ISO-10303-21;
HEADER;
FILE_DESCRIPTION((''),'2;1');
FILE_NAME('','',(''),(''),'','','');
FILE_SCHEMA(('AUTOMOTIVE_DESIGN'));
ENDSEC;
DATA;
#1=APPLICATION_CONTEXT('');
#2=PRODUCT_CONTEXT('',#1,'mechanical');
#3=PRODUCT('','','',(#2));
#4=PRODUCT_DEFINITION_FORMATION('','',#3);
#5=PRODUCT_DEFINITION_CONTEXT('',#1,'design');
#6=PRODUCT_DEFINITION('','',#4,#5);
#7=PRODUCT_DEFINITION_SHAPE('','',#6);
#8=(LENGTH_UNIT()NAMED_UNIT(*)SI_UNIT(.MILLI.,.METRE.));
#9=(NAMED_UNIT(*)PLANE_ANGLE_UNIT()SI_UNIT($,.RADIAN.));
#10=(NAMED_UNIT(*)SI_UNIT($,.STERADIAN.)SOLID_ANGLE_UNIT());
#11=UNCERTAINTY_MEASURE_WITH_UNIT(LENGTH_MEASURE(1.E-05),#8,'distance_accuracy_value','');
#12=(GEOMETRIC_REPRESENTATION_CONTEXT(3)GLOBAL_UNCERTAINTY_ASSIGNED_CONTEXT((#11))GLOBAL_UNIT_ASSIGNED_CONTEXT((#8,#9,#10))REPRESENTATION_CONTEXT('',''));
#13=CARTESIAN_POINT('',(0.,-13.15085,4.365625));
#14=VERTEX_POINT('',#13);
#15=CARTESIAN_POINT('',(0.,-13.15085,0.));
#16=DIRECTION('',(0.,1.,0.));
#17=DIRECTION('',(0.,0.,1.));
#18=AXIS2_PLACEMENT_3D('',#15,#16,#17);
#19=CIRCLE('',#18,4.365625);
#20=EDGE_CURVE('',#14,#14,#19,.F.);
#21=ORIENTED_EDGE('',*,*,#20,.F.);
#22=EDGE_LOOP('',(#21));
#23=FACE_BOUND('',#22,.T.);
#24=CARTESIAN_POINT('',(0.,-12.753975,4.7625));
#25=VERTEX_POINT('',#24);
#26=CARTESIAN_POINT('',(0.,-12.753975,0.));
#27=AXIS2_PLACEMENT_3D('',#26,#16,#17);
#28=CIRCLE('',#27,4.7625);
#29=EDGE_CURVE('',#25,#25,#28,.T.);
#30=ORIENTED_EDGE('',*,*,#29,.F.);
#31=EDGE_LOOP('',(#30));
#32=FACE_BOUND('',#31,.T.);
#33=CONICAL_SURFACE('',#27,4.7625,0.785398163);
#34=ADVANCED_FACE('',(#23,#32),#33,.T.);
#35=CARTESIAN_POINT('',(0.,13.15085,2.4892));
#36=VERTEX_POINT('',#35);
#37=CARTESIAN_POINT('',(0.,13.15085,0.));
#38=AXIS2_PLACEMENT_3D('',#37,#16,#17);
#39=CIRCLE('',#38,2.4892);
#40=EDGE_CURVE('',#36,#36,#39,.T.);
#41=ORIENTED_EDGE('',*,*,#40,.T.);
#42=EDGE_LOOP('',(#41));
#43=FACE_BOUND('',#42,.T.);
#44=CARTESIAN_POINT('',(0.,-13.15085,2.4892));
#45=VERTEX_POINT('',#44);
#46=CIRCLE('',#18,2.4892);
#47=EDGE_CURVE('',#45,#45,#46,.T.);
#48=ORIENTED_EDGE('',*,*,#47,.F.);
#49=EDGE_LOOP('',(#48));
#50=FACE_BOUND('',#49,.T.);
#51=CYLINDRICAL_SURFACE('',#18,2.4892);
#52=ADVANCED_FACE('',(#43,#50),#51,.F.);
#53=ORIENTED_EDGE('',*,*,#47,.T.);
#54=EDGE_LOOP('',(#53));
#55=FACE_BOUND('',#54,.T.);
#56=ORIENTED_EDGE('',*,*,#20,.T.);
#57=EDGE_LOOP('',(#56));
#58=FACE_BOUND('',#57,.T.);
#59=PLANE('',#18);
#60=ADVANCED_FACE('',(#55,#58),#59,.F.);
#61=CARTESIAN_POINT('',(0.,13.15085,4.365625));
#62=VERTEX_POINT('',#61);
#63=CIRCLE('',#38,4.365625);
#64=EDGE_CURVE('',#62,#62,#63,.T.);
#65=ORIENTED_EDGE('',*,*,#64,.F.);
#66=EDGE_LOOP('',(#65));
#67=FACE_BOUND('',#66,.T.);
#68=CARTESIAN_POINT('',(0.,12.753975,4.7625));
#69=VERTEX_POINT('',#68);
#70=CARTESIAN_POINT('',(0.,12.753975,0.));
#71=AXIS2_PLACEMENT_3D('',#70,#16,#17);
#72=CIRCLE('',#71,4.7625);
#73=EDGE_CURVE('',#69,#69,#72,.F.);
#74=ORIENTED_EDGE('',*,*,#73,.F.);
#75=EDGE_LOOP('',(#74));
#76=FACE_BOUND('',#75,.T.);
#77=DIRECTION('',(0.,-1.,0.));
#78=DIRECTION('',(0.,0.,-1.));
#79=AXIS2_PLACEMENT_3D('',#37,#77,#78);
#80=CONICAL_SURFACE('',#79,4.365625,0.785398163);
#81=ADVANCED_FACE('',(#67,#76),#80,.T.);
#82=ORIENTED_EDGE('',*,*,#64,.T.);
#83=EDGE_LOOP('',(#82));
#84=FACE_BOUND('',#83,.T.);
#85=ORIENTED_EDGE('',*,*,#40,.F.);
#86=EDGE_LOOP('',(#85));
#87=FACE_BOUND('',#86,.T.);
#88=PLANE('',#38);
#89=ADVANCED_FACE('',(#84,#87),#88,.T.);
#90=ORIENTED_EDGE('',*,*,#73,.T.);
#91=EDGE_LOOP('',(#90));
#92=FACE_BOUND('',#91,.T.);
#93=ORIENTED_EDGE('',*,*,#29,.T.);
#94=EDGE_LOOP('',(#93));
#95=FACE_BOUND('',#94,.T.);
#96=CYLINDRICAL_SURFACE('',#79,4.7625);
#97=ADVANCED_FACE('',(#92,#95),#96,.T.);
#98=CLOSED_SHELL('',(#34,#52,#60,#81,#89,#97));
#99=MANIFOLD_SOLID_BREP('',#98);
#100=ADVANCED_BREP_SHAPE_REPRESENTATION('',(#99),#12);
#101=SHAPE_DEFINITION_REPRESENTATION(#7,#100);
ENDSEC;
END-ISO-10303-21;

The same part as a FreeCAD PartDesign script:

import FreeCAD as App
import Part
import Sketcher
from FreeCAD import Vector
Q = App.Units.Quantity


def edges_at(feature, points):
    """Names of the edges that pass closest to the given points."""
    edges = feature.Shape.Edges
    near = lambda p: min(range(len(edges)), key=lambda i: edges[i].distToShape(Part.Vertex(*p))[0])
    return sorted({f"Edge{near(p) + 1}" for p in points})

doc = App.newDocument("Part")
body = doc.addObject("PartDesign::Body", "Body")

# Sketch on XZ plane
sketch1 = body.newObject("Sketcher::SketchObject", "Sketch")
sketch1.AttachmentSupport = (doc.getObject("XZ_Plane"), [""])
sketch1.MapMode = "FlatFace"
sketch1.addGeometry(Part.Circle(Vector(0, 0, 0), Vector(0, 0, 1), 4.7625), False)
sketch1.addConstraint(Sketcher.Constraint("Coincident", 0, 3, -1, 1))
sketch1.addConstraint(Sketcher.Constraint("Diameter", 0, Q("0.375 in")))
pad1 = body.newObject("PartDesign::Pad", "Pad")
pad1.Profile = sketch1
pad1.Length = Q("1.0355 in")
pad1.Midplane = True
doc.recompute()

chamfer = body.newObject("PartDesign::Chamfer", "Chamfer")
chamfer.Base = (pad1, edges_at(pad1, [(0, -13.151, -4.763), (0, 13.151, -4.763)]))
chamfer.Size = Q("0.015625 in")

# Sketch on XZ plane
sketch2 = body.newObject("Sketcher::SketchObject", "Sketch001")
sketch2.AttachmentSupport = (doc.getObject("XZ_Plane"), [""])
sketch2.MapMode = "FlatFace"
sketch2.addGeometry(Part.Circle(Vector(0, 0, 0), Vector(0, 0, 1), 2.4892), False)
sketch2.addConstraint(Sketcher.Constraint("Coincident", 0, 3, -1, 1))
sketch2.addConstraint(Sketcher.Constraint("Diameter", 0, Q("0.196 in")))
pocket1 = body.newObject("PartDesign::Pocket", "Pocket")
pocket1.Profile = sketch2
pocket1.Type = "ThroughAll"
pocket1.Midplane = True

doc.recompute()
